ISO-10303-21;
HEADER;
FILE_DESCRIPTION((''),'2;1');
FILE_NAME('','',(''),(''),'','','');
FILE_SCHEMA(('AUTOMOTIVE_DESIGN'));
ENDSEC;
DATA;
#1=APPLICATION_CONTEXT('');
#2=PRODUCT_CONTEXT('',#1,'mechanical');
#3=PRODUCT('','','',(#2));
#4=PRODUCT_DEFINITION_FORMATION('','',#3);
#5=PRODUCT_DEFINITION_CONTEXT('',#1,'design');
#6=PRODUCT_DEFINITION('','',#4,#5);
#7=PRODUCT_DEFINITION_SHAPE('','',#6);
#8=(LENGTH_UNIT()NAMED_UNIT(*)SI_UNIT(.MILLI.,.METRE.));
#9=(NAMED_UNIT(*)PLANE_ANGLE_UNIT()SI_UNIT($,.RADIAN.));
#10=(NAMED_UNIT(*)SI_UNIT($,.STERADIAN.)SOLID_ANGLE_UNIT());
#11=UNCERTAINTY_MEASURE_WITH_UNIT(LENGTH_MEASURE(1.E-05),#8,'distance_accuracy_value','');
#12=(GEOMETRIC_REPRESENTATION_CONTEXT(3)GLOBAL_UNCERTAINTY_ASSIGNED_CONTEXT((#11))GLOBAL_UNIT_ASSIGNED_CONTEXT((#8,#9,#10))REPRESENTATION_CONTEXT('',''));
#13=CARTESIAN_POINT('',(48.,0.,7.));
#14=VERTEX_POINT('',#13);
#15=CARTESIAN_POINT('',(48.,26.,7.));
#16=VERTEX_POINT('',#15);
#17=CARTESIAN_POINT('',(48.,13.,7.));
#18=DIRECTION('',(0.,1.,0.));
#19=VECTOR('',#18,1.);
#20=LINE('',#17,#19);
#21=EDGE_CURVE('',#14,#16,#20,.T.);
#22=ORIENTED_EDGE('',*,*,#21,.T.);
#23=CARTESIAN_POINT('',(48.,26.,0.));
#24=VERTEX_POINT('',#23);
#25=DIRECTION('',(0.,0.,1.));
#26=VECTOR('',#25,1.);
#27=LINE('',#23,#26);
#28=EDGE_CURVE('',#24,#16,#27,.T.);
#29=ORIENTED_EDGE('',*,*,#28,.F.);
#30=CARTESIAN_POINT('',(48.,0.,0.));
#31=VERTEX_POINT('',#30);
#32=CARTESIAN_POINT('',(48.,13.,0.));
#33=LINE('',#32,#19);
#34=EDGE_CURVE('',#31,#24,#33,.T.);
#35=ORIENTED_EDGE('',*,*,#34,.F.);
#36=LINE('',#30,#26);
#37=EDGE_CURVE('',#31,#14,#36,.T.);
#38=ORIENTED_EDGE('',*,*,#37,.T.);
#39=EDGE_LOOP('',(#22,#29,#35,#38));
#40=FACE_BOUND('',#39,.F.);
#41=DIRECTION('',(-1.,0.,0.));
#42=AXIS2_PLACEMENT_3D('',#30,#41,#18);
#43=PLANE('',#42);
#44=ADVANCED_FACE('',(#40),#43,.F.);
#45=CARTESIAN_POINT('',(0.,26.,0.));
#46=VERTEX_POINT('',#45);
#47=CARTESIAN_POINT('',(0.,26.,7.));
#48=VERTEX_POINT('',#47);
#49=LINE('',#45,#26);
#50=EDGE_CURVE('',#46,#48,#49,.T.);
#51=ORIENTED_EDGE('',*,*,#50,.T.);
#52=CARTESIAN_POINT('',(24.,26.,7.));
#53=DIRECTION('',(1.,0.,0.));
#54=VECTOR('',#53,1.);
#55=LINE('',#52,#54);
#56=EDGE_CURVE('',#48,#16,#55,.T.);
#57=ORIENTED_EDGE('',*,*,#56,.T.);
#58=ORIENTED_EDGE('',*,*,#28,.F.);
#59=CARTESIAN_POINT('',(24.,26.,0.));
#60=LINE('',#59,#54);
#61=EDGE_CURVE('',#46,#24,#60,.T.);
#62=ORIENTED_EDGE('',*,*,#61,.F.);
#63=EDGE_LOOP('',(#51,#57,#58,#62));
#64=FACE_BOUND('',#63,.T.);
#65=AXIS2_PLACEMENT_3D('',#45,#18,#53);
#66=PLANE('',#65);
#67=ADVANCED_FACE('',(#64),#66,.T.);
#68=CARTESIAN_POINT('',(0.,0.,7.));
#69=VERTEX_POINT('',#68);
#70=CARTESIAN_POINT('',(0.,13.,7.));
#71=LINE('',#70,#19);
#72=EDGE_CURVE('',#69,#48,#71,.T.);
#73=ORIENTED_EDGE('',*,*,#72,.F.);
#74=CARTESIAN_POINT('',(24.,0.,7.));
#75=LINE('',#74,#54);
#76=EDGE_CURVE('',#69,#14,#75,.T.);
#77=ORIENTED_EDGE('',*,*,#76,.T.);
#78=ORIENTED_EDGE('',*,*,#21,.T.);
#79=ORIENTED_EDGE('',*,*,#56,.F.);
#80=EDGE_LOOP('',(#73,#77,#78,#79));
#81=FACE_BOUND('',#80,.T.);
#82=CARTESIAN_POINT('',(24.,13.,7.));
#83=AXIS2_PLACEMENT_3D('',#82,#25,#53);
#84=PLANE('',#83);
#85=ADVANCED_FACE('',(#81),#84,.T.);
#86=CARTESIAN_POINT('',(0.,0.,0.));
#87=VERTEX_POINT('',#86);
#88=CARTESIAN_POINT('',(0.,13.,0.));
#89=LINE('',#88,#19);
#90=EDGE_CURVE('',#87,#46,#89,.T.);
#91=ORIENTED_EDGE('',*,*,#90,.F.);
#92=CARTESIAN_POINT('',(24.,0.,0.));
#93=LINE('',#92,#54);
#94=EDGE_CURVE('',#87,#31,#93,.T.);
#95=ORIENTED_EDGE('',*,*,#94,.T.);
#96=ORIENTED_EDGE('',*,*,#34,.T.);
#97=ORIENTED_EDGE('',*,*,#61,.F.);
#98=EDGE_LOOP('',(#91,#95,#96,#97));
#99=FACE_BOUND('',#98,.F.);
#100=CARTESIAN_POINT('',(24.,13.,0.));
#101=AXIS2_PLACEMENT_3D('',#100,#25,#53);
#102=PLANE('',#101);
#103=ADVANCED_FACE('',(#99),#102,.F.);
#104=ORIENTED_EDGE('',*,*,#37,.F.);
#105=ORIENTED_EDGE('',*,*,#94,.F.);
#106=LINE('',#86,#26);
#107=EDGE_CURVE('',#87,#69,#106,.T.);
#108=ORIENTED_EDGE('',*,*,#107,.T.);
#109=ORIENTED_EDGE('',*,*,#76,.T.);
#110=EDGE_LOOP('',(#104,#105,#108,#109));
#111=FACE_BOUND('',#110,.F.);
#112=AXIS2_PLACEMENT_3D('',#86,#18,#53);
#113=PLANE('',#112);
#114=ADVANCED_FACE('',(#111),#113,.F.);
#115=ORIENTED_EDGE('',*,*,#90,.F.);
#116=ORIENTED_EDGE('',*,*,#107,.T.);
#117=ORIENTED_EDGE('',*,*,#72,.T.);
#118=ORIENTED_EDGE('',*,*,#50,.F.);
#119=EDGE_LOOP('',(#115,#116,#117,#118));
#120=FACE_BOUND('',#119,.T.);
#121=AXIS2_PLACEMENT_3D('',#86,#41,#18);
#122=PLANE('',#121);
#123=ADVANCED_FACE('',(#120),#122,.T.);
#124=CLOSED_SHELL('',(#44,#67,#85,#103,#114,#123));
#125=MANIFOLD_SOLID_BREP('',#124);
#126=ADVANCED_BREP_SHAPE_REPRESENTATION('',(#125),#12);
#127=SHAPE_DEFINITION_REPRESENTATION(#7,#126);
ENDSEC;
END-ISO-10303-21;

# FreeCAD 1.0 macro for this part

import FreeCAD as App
import Part
import Sketcher

V = App.Vector
Q = App.Units.Quantity


def add_polygon(sketch, points):
    """Adds a closed chain of lines whose ends are joined by coincident constraints."""
    first, n = sketch.GeometryCount, len(points)
    for a, b in zip(points, points[1:] + points[:1]):
        sketch.addGeometry(Part.LineSegment(App.Vector(*a, 0), App.Vector(*b, 0)), False)
    for i in range(n):
        sketch.addConstraint(Sketcher.Constraint("Coincident", first + i, 2, first + (i + 1) % n, 1))

doc = App.newDocument("Part")
params = doc.addObject("Spreadsheet::Sheet", "Params")
for row, (alias, value) in enumerate([
    ("sketch1_width", "48 mm"),
    ("sketch1_height", "26 mm"),
    ("pad1_length", "7 mm"),
], start=1):
    params.set(f"A{row}", alias)
    params.set(f"B{row}", "=" + value)
    params.setAlias(f"B{row}", alias)

body = doc.addObject("PartDesign::Body", "Body")

# Sketch on XY plane
sketch1 = body.newObject("Sketcher::SketchObject", "Sketch")
sketch1.AttachmentSupport = (doc.getObject("XY_Plane"), [""])
sketch1.MapMode = "FlatFace"
add_polygon(sketch1, [(0, 26), (0, 0), (48, 0), (48, 26)])  # lines 0-3
sketch1.addConstraint(Sketcher.Constraint("Vertical", 0))
sketch1.addConstraint(Sketcher.Constraint("Horizontal", 1))
sketch1.addConstraint(Sketcher.Constraint("Vertical", 2))
sketch1.addConstraint(Sketcher.Constraint("Horizontal", 3))
sketch1.addConstraint(Sketcher.Constraint("Coincident", 0, 2, -1, 1))
sketch1.addConstraint(Sketcher.Constraint("DistanceX", 1, 1, 1, 2, Q("48 mm")))
sketch1.addConstraint(Sketcher.Constraint("DistanceY", 0, 2, 0, 1, Q("26 mm")))
sketch1.setExpression("Constraints[9]", "Params.sketch1_width")
sketch1.setExpression("Constraints[10]", "Params.sketch1_height")
pad1 = body.newObject("PartDesign::Pad", "Pad")
pad1.Profile = sketch1
pad1.setExpression("Length", "Params.pad1_length")

doc.recompute()
